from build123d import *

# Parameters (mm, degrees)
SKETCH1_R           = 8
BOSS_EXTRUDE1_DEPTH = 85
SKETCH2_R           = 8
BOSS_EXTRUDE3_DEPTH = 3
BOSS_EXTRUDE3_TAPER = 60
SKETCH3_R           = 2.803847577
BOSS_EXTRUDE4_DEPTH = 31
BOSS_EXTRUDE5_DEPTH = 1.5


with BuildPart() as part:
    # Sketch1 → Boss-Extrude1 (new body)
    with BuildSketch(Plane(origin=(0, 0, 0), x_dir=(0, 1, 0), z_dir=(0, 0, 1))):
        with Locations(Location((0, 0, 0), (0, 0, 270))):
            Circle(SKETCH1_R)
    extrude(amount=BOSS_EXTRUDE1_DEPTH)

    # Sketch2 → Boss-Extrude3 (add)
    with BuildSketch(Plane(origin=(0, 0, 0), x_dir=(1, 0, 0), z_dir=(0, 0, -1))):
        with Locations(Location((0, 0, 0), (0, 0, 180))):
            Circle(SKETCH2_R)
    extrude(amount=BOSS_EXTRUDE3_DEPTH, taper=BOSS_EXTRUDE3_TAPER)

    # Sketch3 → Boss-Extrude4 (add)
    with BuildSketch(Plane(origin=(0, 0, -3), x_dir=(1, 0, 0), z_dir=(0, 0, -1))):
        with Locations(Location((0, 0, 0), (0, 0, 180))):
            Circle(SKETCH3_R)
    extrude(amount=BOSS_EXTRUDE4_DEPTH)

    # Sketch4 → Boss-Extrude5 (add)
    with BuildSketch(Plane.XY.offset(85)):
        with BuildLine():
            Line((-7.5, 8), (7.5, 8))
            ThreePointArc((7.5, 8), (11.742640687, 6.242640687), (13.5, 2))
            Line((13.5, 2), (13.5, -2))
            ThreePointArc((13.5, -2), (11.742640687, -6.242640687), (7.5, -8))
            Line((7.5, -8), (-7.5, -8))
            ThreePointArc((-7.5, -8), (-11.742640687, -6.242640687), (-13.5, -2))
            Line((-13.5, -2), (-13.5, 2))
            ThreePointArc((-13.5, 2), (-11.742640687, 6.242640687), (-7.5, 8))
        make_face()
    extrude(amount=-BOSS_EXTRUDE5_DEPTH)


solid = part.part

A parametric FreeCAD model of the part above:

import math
import FreeCAD as App
import Part
import Sketcher
Q = App.Units.Quantity

doc = App.newDocument("Part")
params = doc.addObject("Spreadsheet::Sheet", "Params")
for row, (alias, value) in enumerate([
    ("sketch1_diameter", "16 mm"),
    ("pad1_length", "85 mm"),
    ("sketch2_diameter", "16 mm"),
    ("pad2_length", "3 mm"),
    ("pad2_taper", "-60 deg"),
    ("pad3_length", "31 mm"),
    ("sketch4_radius", "6 mm"),
    ("sketch4_width", "15 mm"),
    ("sketch4_height", "4 mm"),
    ("pad4_length", "1.5 mm"),
], start=1):
    params.set(f"A{row}", alias)
    params.set(f"B{row}", "=" + value)
    params.setAlias(f"B{row}", alias)

body = doc.addObject("PartDesign::Body", "Body")

# Sketch on XY plane
sketch1 = body.newObject("Sketcher::SketchObject", "Sketch")
sketch1.AttachmentSupport = (doc.getObject("XY_Plane"), [""])
sketch1.MapMode = "FlatFace"
sketch1.addGeometry(Part.Circle(App.Vector(0, 0, 0), App.Vector(0, 0, 1), 8), False)
sketch1.addConstraint([
    Sketcher.Constraint("Coincident", 0, 3, -1, 1),
    Sketcher.Constraint("Diameter", 0, Q("16 mm")),
])
sketch1.setExpression("Constraints[1]", "Params.sketch1_diameter")
pad1 = body.newObject("PartDesign::Pad", "Pad")
pad1.Profile = sketch1
pad1.setExpression("Length", "Params.pad1_length")

# Sketch on XY plane
sketch2 = body.newObject("Sketcher::SketchObject", "Sketch001")
sketch2.AttachmentSupport = (doc.getObject("XY_Plane"), [""])
sketch2.MapMode = "FlatFace"
sketch2.addGeometry(Part.Circle(App.Vector(0, 0, 0), App.Vector(0, 0, 1), 8), False)
sketch2.addConstraint([
    Sketcher.Constraint("Coincident", 0, 3, -1, 1),
    Sketcher.Constraint("Diameter", 0, Q("16 mm")),
])
sketch2.setExpression("Constraints[1]", "Params.sketch2_diameter")
pad2 = body.newObject("PartDesign::Pad", "Pad001")
pad2.Profile = sketch2
pad2.setExpression("Length", "Params.pad2_length")
pad2.Reversed = True
pad2.setExpression("TaperAngle", "Params.pad2_taper")

# Sketch on XY plane
sketch3 = body.newObject("Sketcher::SketchObject", "Sketch002")
sketch3.AttachmentSupport = (doc.getObject("XY_Plane"), [""])
sketch3.MapMode = "FlatFace"
sketch3.AttachmentOffset = App.Placement(App.Vector(0, 0, -3), App.Rotation())
sketch3.addGeometry(Part.Circle(App.Vector(0, 0, 0), App.Vector(0, 0, 1), 2.803848), False)
sketch3.addConstraint([
    Sketcher.Constraint("Coincident", 0, 3, -1, 1),
    Sketcher.Constraint("Diameter", 0, Q("5.607695 mm")),
])
pad3 = body.newObject("PartDesign::Pad", "Pad002")
pad3.Profile = sketch3
pad3.setExpression("Length", "Params.pad3_length")
pad3.Reversed = True

# Sketch on XY plane
sketch4 = body.newObject("Sketcher::SketchObject", "Sketch003")
sketch4.AttachmentSupport = (doc.getObject("XY_Plane"), [""])
sketch4.MapMode = "FlatFace"
sketch4.AttachmentOffset = App.Placement(App.Vector(0, 0, 85), App.Rotation())
sketch4.addGeometry([
    Part.LineSegment(App.Vector(7.5, 8, 0), App.Vector(-7.5, 8, 0)),  # 0
    Part.ArcOfCircle(Part.Circle(App.Vector(-7.5, 2, 0), App.Vector(0, 0, 1), 6), math.radians(90), math.radians(180)),  # 1
    Part.LineSegment(App.Vector(-13.5, 2, 0), App.Vector(-13.5, -2, 0)),  # 2
    Part.ArcOfCircle(Part.Circle(App.Vector(-7.5, -2, 0), App.Vector(0, 0, 1), 6), math.radians(180), math.radians(270)),  # 3
    Part.LineSegment(App.Vector(-7.5, -8, 0), App.Vector(7.5, -8, 0)),  # 4
    Part.ArcOfCircle(Part.Circle(App.Vector(7.5, -2, 0), App.Vector(0, 0, 1), 6), math.radians(-90), math.radians(0)),  # 5
    Part.LineSegment(App.Vector(13.5, -2, 0), App.Vector(13.5, 2, 0)),  # 6
    Part.ArcOfCircle(Part.Circle(App.Vector(7.5, 2, 0), App.Vector(0, 0, 1), 6), math.radians(0), math.radians(90)),  # 7
], False)
sketch4.addConstraint([
    Sketcher.Constraint("Tangent", 0, 2, 1, 1),
    Sketcher.Constraint("Tangent", 1, 2, 2, 1),
    Sketcher.Constraint("Tangent", 2, 2, 3, 1),
    Sketcher.Constraint("Tangent", 3, 2, 4, 1),
    Sketcher.Constraint("Tangent", 4, 2, 5, 1),
    Sketcher.Constraint("Tangent", 5, 2, 6, 1),
    Sketcher.Constraint("Tangent", 6, 2, 7, 1),
    Sketcher.Constraint("Tangent", 7, 2, 0, 1),
    Sketcher.Constraint("Horizontal", 0),
    Sketcher.Constraint("Vertical", 2),
    Sketcher.Constraint("Horizontal", 4),
    Sketcher.Constraint("Vertical", 6),
    Sketcher.Constraint("Equal", 1, 3),
    Sketcher.Constraint("Equal", 3, 5),
    Sketcher.Constraint("Equal", 5, 7),
    Sketcher.Constraint("Symmetric", 1, 3, 5, 3, -1, 1),
    Sketcher.Constraint("Radius", 1, Q("6 mm")),
    Sketcher.Constraint("DistanceX", 0, 2, 0, 1, Q("15 mm")),
    Sketcher.Constraint("DistanceY", 2, 2, 2, 1, Q("4 mm")),
])
sketch4.setExpression("Constraints[16]", "Params.sketch4_radius")
sketch4.setExpression("Constraints[17]", "Params.sketch4_width")
sketch4.setExpression("Constraints[18]", "Params.sketch4_height")
pad4 = body.newObject("PartDesign::Pad", "Pad003")
pad4.Profile = sketch4
pad4.setExpression("Length", "Params.pad4_length")
pad4.Reversed = True

doc.recompute()
